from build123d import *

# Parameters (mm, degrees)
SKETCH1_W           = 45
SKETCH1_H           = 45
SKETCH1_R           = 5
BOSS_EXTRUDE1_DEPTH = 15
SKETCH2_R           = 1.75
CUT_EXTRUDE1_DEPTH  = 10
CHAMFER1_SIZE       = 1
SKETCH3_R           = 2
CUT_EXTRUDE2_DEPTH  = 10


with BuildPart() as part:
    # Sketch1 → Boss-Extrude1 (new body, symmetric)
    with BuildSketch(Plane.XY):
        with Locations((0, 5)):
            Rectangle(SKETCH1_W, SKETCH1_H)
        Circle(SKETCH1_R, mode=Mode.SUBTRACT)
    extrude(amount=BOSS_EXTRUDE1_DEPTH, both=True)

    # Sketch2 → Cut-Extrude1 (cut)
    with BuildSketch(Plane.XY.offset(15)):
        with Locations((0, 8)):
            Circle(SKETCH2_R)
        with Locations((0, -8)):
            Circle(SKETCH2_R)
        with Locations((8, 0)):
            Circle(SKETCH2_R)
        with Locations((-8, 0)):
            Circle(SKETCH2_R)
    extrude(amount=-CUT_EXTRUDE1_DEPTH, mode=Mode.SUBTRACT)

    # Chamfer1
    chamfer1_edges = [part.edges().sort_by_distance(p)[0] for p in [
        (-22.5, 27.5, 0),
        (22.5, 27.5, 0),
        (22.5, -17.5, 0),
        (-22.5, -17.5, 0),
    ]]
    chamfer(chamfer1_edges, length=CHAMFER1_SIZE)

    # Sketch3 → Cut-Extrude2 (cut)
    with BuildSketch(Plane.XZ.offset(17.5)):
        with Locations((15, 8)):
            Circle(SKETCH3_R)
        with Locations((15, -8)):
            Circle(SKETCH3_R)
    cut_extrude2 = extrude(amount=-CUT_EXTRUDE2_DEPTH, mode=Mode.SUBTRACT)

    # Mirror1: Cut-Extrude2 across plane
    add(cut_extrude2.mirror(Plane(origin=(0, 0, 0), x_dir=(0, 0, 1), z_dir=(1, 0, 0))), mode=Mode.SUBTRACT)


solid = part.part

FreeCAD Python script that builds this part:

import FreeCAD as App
import Part
import Sketcher

V = App.Vector


def edges_at(feature, points):
    """Names of the edges that pass closest to the given points."""
    edges = feature.Shape.Edges
    near = lambda p: min(range(len(edges)), key=lambda i: edges[i].distToShape(Part.Vertex(*p))[0])
    return sorted({f"Edge{near(p) + 1}" for p in points})


def add_polygon(sketch, points):
    """Adds a closed chain of lines whose ends are joined by coincident constraints."""
    first, n = sketch.GeometryCount, len(points)
    for a, b in zip(points, points[1:] + points[:1]):
        sketch.addGeometry(Part.LineSegment(App.Vector(*a, 0), App.Vector(*b, 0)), False)
    for i in range(n):
        sketch.addConstraint(Sketcher.Constraint("Coincident", first + i, 2, first + (i + 1) % n, 1))

doc = App.newDocument("Part")
body = doc.addObject("PartDesign::Body", "Body")

# Sketch on XY plane
sketch1 = doc.addObject("Sketcher::SketchObject", "Sketch")
body.addObject(sketch1)
sketch1.AttachmentSupport = (doc.XY_Plane, [""])
sketch1.MapMode = "FlatFace"
add_polygon(sketch1, [(-22.5, 27.5), (-22.5, -17.5), (22.5, -17.5), (22.5, 27.5)])  # lines 0-3
sketch1.addGeometry(Part.Circle(V(0, 0, 0), V(0, 0, 1), 5), False)  # 4
sketch1.addConstraint(Sketcher.Constraint("Vertical", 0))
sketch1.addConstraint(Sketcher.Constraint("Horizontal", 1))
sketch1.addConstraint(Sketcher.Constraint("Vertical", 2))
sketch1.addConstraint(Sketcher.Constraint("Horizontal", 3))
sketch1.addConstraint(Sketcher.Constraint("Coincident", 4, 3, -1, 1))
sketch1.addConstraint(Sketcher.Constraint("Equal", 3, 0))
sketch1.addConstraint(Sketcher.Constraint("Diameter", 4, 10.0))
sketch1.addConstraint(Sketcher.Constraint("DistanceX", 1, 1, 1, 2, 45.0))
sketch1.addConstraint(Sketcher.Constraint("DistanceX", 0, 2, -1, 1, 22.5))
sketch1.addConstraint(Sketcher.Constraint("DistanceY", 0, 2, -1, 1, 17.5))
pad1 = doc.addObject("PartDesign::Pad", "Pad")
body.addObject(pad1)
pad1.Profile = sketch1
pad1.Length = 30
pad1.Midplane = True

# Sketch on XY plane
sketch2 = doc.addObject("Sketcher::SketchObject", "Sketch001")
body.addObject(sketch2)
sketch2.AttachmentSupport = (doc.XY_Plane, [""])
sketch2.MapMode = "FlatFace"
sketch2.AttachmentOffset = App.Placement(V(0, 0, 15), App.Rotation())
sketch2.addGeometry(Part.Circle(V(0, 8, 0), V(0, 0, 1), 1.75), False)
sketch2.addGeometry(Part.Circle(V(0, -8, 0), V(0, 0, 1), 1.75), False)
sketch2.addGeometry(Part.Circle(V(8, 0, 0), V(0, 0, 1), 1.75), False)
sketch2.addGeometry(Part.Circle(V(-8, 0, 0), V(0, 0, 1), 1.75), False)
sketch2.addConstraint(Sketcher.Constraint("Equal", 0, 1))
sketch2.addConstraint(Sketcher.Constraint("Equal", 1, 2))
sketch2.addConstraint(Sketcher.Constraint("Equal", 2, 3))
sketch2.addConstraint(Sketcher.Constraint("Symmetric", 0, 3, 1, 3, -1, 1))
sketch2.addConstraint(Sketcher.Constraint("Symmetric", 2, 3, 3, 3, -1, 1))
sketch2.addConstraint(Sketcher.Constraint("PointOnObject", 0, 3, -2))
sketch2.addConstraint(Sketcher.Constraint("PointOnObject", 2, 3, -1))
sketch2.addConstraint(Sketcher.Constraint("Diameter", 0, 3.5))
sketch2.addConstraint(Sketcher.Constraint("DistanceY", -1, 1, 0, 3, 8.0))
sketch2.addConstraint(Sketcher.Constraint("DistanceX", -1, 1, 2, 3, 8.0))
pocket1 = doc.addObject("PartDesign::Pocket", "Pocket")
body.addObject(pocket1)
pocket1.Profile = sketch2
pocket1.Length = 10
doc.recompute()

chamfer = doc.addObject("PartDesign::Chamfer", "Chamfer")
body.addObject(chamfer)
chamfer.Base = (pocket1, edges_at(pocket1, [
    (-22.5, 27.5, 0),
    (22.5, 27.5, 0),
    (22.5, -17.5, 0),
    (-22.5, -17.5, 0),
]))
chamfer.Size = 1

# Sketch on XZ plane
sketch3 = doc.addObject("Sketcher::SketchObject", "Sketch002")
body.addObject(sketch3)
sketch3.AttachmentSupport = (doc.XZ_Plane, [""])
sketch3.MapMode = "FlatFace"
sketch3.AttachmentOffset = App.Placement(V(0, 0, 17.5), App.Rotation())
sketch3.addGeometry(Part.Circle(V(15, 8, 0), V(0, 0, 1), 2), False)
sketch3.addGeometry(Part.Circle(V(15, -8, 0), V(0, 0, 1), 2), False)
sketch3.addConstraint(Sketcher.Constraint("Equal", 0, 1))
sketch3.addConstraint(Sketcher.Constraint("Symmetric", 0, 3, 1, 3, -1))
sketch3.addConstraint(Sketcher.Constraint("Diameter", 0, 4.0))
sketch3.addConstraint(Sketcher.Constraint("DistanceX", -1, 1, 0, 3, 15.0))
sketch3.addConstraint(Sketcher.Constraint("DistanceY", -1, 1, 0, 3, 8.0))
pocket2 = doc.addObject("PartDesign::Pocket", "Pocket001")
body.addObject(pocket2)
pocket2.Profile = sketch3
pocket2.Length = 10
doc.recompute()

mirrored = doc.addObject("PartDesign::Mirrored", "Mirrored")
body.addObject(mirrored)
mirrored.Originals = [pocket2]
mirrored.MirrorPlane = (doc.YZ_Plane, [""])
body.Tip = mirrored

doc.recompute()
